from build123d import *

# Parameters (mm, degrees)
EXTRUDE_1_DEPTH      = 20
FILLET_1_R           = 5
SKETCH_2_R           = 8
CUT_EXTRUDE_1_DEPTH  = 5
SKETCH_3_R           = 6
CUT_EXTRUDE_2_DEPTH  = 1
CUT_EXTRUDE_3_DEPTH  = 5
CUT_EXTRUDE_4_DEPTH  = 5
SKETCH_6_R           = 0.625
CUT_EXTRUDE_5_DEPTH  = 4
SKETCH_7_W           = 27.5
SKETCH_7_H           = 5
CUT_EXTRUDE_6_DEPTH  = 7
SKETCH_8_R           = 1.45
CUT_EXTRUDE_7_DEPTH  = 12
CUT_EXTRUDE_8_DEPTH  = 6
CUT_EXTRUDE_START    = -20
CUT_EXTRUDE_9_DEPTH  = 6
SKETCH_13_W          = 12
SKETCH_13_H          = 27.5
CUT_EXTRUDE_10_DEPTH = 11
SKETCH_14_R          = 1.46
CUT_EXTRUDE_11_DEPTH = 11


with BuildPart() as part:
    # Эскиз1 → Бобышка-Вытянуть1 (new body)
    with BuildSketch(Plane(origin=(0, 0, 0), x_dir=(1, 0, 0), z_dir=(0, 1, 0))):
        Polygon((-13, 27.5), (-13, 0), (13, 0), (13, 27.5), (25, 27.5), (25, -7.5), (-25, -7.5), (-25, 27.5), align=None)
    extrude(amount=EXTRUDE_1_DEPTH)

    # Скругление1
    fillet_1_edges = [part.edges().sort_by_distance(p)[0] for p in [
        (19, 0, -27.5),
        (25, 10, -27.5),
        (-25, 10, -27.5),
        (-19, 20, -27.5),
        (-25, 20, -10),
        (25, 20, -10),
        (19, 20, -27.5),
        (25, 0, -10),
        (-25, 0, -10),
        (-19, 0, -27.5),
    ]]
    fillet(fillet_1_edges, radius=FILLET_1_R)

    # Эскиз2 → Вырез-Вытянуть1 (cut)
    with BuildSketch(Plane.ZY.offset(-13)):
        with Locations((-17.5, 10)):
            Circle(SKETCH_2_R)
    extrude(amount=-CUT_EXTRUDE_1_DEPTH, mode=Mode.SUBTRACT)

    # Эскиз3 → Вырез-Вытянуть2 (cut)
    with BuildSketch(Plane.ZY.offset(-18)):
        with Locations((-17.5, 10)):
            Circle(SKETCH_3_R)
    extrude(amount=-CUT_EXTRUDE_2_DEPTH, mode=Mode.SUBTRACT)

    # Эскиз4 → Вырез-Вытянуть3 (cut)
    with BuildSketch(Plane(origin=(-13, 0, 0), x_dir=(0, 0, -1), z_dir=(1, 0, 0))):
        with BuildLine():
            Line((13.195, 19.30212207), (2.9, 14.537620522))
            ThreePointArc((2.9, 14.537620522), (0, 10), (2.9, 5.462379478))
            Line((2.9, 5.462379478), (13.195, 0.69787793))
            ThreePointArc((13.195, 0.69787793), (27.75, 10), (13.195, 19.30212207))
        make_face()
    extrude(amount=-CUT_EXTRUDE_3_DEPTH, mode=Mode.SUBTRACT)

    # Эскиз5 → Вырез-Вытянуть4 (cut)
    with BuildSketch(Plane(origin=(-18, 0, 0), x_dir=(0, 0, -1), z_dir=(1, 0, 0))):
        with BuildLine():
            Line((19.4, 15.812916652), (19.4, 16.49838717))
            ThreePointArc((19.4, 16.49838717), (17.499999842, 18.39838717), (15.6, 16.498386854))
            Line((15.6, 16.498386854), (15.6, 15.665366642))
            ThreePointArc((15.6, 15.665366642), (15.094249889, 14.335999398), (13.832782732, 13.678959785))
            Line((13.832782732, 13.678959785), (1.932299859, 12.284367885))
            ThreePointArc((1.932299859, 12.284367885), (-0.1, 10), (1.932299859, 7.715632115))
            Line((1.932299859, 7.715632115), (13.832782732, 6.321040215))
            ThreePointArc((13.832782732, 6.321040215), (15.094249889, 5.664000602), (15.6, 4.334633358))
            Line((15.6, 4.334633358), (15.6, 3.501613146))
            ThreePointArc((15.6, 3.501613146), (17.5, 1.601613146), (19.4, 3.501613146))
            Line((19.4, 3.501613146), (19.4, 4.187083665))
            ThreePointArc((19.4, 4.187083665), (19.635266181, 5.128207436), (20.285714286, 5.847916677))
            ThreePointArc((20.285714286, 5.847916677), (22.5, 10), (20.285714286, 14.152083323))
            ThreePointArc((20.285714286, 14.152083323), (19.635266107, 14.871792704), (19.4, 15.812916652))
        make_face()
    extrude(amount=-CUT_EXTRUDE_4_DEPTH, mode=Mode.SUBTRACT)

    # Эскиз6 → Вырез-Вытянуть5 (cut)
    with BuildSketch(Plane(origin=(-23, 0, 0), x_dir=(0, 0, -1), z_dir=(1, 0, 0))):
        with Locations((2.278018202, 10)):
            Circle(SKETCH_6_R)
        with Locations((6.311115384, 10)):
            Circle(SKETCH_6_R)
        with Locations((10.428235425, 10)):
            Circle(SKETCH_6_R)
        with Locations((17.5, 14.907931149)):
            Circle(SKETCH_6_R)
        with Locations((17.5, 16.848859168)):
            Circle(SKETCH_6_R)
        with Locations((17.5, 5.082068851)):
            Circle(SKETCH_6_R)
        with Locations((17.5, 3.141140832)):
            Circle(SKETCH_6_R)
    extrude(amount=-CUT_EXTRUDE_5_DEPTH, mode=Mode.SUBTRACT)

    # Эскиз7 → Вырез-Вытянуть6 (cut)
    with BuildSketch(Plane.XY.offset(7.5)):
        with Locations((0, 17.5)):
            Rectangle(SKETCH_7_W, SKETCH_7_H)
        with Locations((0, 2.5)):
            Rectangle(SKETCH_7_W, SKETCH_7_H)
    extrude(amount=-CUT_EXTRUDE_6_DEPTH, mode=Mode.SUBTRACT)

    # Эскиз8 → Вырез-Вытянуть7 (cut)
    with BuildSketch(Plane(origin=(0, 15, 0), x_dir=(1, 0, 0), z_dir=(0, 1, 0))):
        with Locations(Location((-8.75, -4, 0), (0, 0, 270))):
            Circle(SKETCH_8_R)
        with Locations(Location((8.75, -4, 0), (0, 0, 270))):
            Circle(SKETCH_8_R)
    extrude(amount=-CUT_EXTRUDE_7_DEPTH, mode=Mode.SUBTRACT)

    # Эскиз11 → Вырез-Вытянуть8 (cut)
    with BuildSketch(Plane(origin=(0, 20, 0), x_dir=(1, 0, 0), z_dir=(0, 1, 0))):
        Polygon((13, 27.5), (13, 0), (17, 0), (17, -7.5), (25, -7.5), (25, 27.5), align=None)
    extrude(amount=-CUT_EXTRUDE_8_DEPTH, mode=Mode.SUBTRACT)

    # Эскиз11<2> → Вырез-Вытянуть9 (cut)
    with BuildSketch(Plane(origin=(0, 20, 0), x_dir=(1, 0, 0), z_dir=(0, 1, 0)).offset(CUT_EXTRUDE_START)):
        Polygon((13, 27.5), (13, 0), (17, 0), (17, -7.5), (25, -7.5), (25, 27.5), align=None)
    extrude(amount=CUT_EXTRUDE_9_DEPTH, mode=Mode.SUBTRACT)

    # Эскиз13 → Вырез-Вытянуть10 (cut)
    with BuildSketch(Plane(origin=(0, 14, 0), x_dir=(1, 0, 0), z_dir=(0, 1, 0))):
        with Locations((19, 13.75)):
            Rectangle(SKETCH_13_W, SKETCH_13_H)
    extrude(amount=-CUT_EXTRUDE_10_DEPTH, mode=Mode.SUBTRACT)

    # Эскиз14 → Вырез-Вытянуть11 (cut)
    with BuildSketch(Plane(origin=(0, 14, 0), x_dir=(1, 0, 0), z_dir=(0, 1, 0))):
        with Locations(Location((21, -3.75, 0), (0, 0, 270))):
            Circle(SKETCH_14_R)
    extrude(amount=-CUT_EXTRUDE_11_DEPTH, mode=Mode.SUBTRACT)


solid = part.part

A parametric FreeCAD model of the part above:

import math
import FreeCAD as App
import Part
import Sketcher


def edges_at(feature, points):
    """Names of the edges that pass closest to the given points."""
    edges = feature.Shape.Edges
    near = lambda p: min(range(len(edges)), key=lambda i: edges[i].distToShape(Part.Vertex(*p))[0])
    return sorted({f"Edge{near(p) + 1}" for p in points})

doc = App.newDocument("Part")
body = doc.addObject("PartDesign::Body", "Body")

# Sketch on XZ plane
sketch1 = body.newObject("Sketcher::SketchObject", "Sketch")
sketch1.AttachmentSupport = (doc.getObject("XZ_Plane"), [""])
sketch1.MapMode = "FlatFace"
sketch1.addGeometry(Part.LineSegment(App.Vector(-13, 0, 0), App.Vector(-13, -28, 0)), False)
sketch1.addGeometry(Part.LineSegment(App.Vector(-13, -28, 0), App.Vector(-25, -28, 0)), False)
sketch1.addGeometry(Part.LineSegment(App.Vector(-25, -28, 0), App.Vector(-25, 8, 0)), False)
sketch1.addGeometry(Part.LineSegment(App.Vector(-25, 8, 0), App.Vector(25, 8, 0)), False)
sketch1.addGeometry(Part.LineSegment(App.Vector(25, 8, 0), App.Vector(25, -28, 0)), False)
sketch1.addGeometry(Part.LineSegment(App.Vector(25, -28, 0), App.Vector(13, -28, 0)), False)
sketch1.addGeometry(Part.LineSegment(App.Vector(13, -28, 0), App.Vector(13, 0, 0)), False)
sketch1.addGeometry(Part.LineSegment(App.Vector(13, 0, 0), App.Vector(-13, 0, 0)), False)
sketch1.addConstraint(Sketcher.Constraint("Coincident", 0, 2, 1, 1))
sketch1.addConstraint(Sketcher.Constraint("Coincident", 1, 2, 2, 1))
sketch1.addConstraint(Sketcher.Constraint("Coincident", 2, 2, 3, 1))
sketch1.addConstraint(Sketcher.Constraint("Coincident", 3, 2, 4, 1))
sketch1.addConstraint(Sketcher.Constraint("Coincident", 4, 2, 5, 1))
sketch1.addConstraint(Sketcher.Constraint("Coincident", 5, 2, 6, 1))
sketch1.addConstraint(Sketcher.Constraint("Coincident", 6, 2, 7, 1))
sketch1.addConstraint(Sketcher.Constraint("Coincident", 7, 2, 0, 1))
sketch1.addConstraint(Sketcher.Constraint("Vertical", 0))
sketch1.addConstraint(Sketcher.Constraint("Horizontal", 1))
sketch1.addConstraint(Sketcher.Constraint("Vertical", 2))
sketch1.addConstraint(Sketcher.Constraint("Horizontal", 3))
sketch1.addConstraint(Sketcher.Constraint("Vertical", 4))
sketch1.addConstraint(Sketcher.Constraint("Horizontal", 5))
sketch1.addConstraint(Sketcher.Constraint("Vertical", 6))
sketch1.addConstraint(Sketcher.Constraint("Horizontal", 7))
sketch1.addConstraint(Sketcher.Constraint("Symmetric", 6, 2, 7, 2, -1, 1))
sketch1.addConstraint(Sketcher.Constraint("Symmetric", 1, 2, 4, 2, -2))
sketch1.addConstraint(Sketcher.Constraint("DistanceX", 1, 2, 1, 1, 12.0))
sketch1.addConstraint(Sketcher.Constraint("DistanceX", 3, 1, 3, 2, 50.0))
sketch1.addConstraint(Sketcher.Constraint("DistanceY", 2, 1, 2, 2, 35.0))
sketch1.addConstraint(Sketcher.Constraint("DistanceY", 0, 2, 0, 1, 27.5))
pad1 = body.newObject("PartDesign::Pad", "Pad")
pad1.Profile = sketch1
pad1.Length = 20
pad1.Reversed = True
doc.recompute()

fillet = body.newObject("PartDesign::Fillet", "Fillet")
fillet.Base = (pad1, edges_at(pad1, [
    (19, 0, -27.5),
    (25, 10, -27.5),
    (-25, 10, -27.5),
    (-19, 20, -27.5),
    (-25, 20, -10),
    (25, 20, -10),
    (19, 20, -27.5),
    (25, 0, -10),
    (-25, 0, -10),
    (-19, 0, -27.5),
]))
fillet.Radius = 5

# Sketch on YZ plane
sketch2 = body.newObject("Sketcher::SketchObject", "Sketch001")
sketch2.AttachmentSupport = (doc.getObject("YZ_Plane"), [""])
sketch2.MapMode = "FlatFace"
sketch2.AttachmentOffset = App.Placement(App.Vector(0, 0, 13), App.Rotation())
sketch2.addGeometry(Part.Circle(App.Vector(10, -18, 0), App.Vector(0, 0, 1), 8), False)
sketch2.addConstraint(Sketcher.Constraint("Diameter", 0, 16.0))
sketch2.addConstraint(Sketcher.Constraint("DistanceX", -1, 1, 0, 3, 10.0))
sketch2.addConstraint(Sketcher.Constraint("DistanceY", 0, 3, -1, 1, 17.5))
pocket1 = body.newObject("PartDesign::Pocket", "Pocket")
pocket1.Profile = sketch2
pocket1.Length = 5
pocket1.Reversed = True

# Sketch on YZ plane
sketch3 = body.newObject("Sketcher::SketchObject", "Sketch002")
sketch3.AttachmentSupport = (doc.getObject("YZ_Plane"), [""])
sketch3.MapMode = "FlatFace"
sketch3.AttachmentOffset = App.Placement(App.Vector(0, 0, 18), App.Rotation())
sketch3.addGeometry(Part.Circle(App.Vector(10, -18, 0), App.Vector(0, 0, 1), 6), False)
sketch3.addConstraint(Sketcher.Constraint("Diameter", 0, 12.0))
sketch3.addConstraint(Sketcher.Constraint("DistanceX", -1, 1, 0, 3, 10.0))
sketch3.addConstraint(Sketcher.Constraint("DistanceY", 0, 3, -1, 1, 17.5))
pocket2 = body.newObject("PartDesign::Pocket", "Pocket001")
pocket2.Profile = sketch3
pocket2.Length = 1
pocket2.Reversed = True

# Sketch on YZ plane
sketch4 = body.newObject("Sketcher::SketchObject", "Sketch003")
sketch4.AttachmentSupport = (doc.getObject("YZ_Plane"), [""])
sketch4.MapMode = "FlatFace"
sketch4.AttachmentOffset = App.Placement(App.Vector(0, 0, -13), App.Rotation())
sketch4.addGeometry(Part.LineSegment(App.Vector(19, -13, 0), App.Vector(15, -3, 0)), False)
sketch4.addGeometry(Part.ArcOfCircle(Part.Circle(App.Vector(10, -5, 0), App.Vector(0, 0, 1), 5), math.radians(25), math.radians(155)), False)
sketch4.addGeometry(Part.LineSegment(App.Vector(5, -3, 0), App.Vector(1, -13, 0)), False)
sketch4.addGeometry(Part.ArcOfCircle(Part.Circle(App.Vector(10, -18, 0), App.Vector(0, 0, 1), 10), math.radians(155), math.radians(385)), False)
sketch4.addConstraint(Sketcher.Constraint("Tangent", 0, 2, 1, 1))
sketch4.addConstraint(Sketcher.Constraint("Tangent", 1, 2, 2, 1))
sketch4.addConstraint(Sketcher.Constraint("Tangent", 2, 2, 3, 1))
sketch4.addConstraint(Sketcher.Constraint("Tangent", 3, 2, 0, 1))
sketch4.addConstraint(Sketcher.Constraint("Horizontal", 0, 2, 1, 2))
sketch4.addConstraint(Sketcher.Constraint("Radius", 1, 5.0))
sketch4.addConstraint(Sketcher.Constraint("Radius", 3, 10.25))
sketch4.addConstraint(Sketcher.Constraint("DistanceX", -1, 1, 1, 3, 10.0))
sketch4.addConstraint(Sketcher.Constraint("DistanceY", 1, 3, -1, 1, 5.0))
sketch4.addConstraint(Sketcher.Constraint("DistanceY", 3, 3, -1, 1, 17.5))
pocket3 = body.newObject("PartDesign::Pocket", "Pocket002")
pocket3.Profile = sketch4
pocket3.Length = 5

# Sketch on YZ plane
sketch5 = body.newObject("Sketcher::SketchObject", "Sketch004")
sketch5.AttachmentSupport = (doc.getObject("YZ_Plane"), [""])
sketch5.MapMode = "FlatFace"
sketch5.AttachmentOffset = App.Placement(App.Vector(0, 0, -18), App.Rotation())
sketch5.addGeometry(Part.LineSegment(App.Vector(15.8, -19.4, 0), App.Vector(16.5, -19.4, 0)), False)
sketch5.addGeometry(Part.ArcOfCircle(Part.Circle(App.Vector(16.5, -17.5, 0), App.Vector(0, 0, 1), 1.9), math.radians(-90), math.radians(90)), False)
sketch5.addGeometry(Part.LineSegment(App.Vector(16.5, -15.6, 0), App.Vector(15.7, -15.6, 0)), False)
sketch5.addGeometry(Part.ArcOfCircle(Part.Circle(App.Vector(15.7, -13.6, 0), App.Vector(0, 0, 1), 2), math.radians(-173), math.radians(-90)), False)
sketch5.addGeometry(Part.LineSegment(App.Vector(13.7, -13.8, 0), App.Vector(12.3, -1.9, 0)), False)
sketch5.addGeometry(Part.ArcOfCircle(Part.Circle(App.Vector(10, -2.2, 0), App.Vector(0, 0, 1), 2.3), math.radians(7), math.radians(173)), False)
sketch5.addGeometry(Part.LineSegment(App.Vector(7.7, -1.9, 0), App.Vector(6.3, -13.8, 0)), False)
sketch5.addGeometry(Part.ArcOfCircle(Part.Circle(App.Vector(4.3, -13.6, 0), App.Vector(0, 0, 1), 2), math.radians(-90), math.radians(-7)), False)
sketch5.addGeometry(Part.LineSegment(App.Vector(4.3, -15.6, 0), App.Vector(3.5, -15.6, 0)), False)
sketch5.addGeometry(Part.ArcOfCircle(Part.Circle(App.Vector(3.5, -17.5, 0), App.Vector(0, 0, 1), 1.9), math.radians(90), math.radians(270)), False)
sketch5.addGeometry(Part.LineSegment(App.Vector(3.5, -19.4, 0), App.Vector(4.2, -19.4, 0)), False)
sketch5.addGeometry(Part.ArcOfCircle(Part.Circle(App.Vector(4.2, -21.4, 0), App.Vector(0, 0, 1), 2), math.radians(34), math.radians(90)), False)
sketch5.addGeometry(Part.ArcOfCircle(Part.Circle(App.Vector(10, -17.5, 0), App.Vector(0, 0, 1), 5), math.radians(-146), math.radians(-34)), False)
sketch5.addGeometry(Part.ArcOfCircle(Part.Circle(App.Vector(15.8, -21.4, 0), App.Vector(0, 0, 1), 2), math.radians(90), math.radians(146)), False)
sketch5.addConstraint(Sketcher.Constraint("Tangent", 0, 2, 1, 1))
sketch5.addConstraint(Sketcher.Constraint("Tangent", 1, 2, 2, 1))
sketch5.addConstraint(Sketcher.Constraint("Tangent", 2, 2, 3, 2))
sketch5.addConstraint(Sketcher.Constraint("Tangent", 3, 1, 4, 1))
sketch5.addConstraint(Sketcher.Constraint("Tangent", 4, 2, 5, 1))
sketch5.addConstraint(Sketcher.Constraint("Tangent", 5, 2, 6, 1))
sketch5.addConstraint(Sketcher.Constraint("Tangent", 6, 2, 7, 2))
sketch5.addConstraint(Sketcher.Constraint("Tangent", 7, 1, 8, 1))
sketch5.addConstraint(Sketcher.Constraint("Tangent", 8, 2, 9, 1))
sketch5.addConstraint(Sketcher.Constraint("Tangent", 9, 2, 10, 1))
sketch5.addConstraint(Sketcher.Constraint("Tangent", 10, 2, 11, 2))
sketch5.addConstraint(Sketcher.Constraint("Tangent", 11, 1, 12, 1))
sketch5.addConstraint(Sketcher.Constraint("Tangent", 12, 2, 13, 2))
sketch5.addConstraint(Sketcher.Constraint("Tangent", 13, 1, 0, 1))
sketch5.addConstraint(Sketcher.Constraint("Horizontal", 0))
sketch5.addConstraint(Sketcher.Constraint("Horizontal", 2))
sketch5.addConstraint(Sketcher.Constraint("Horizontal", 8))
sketch5.addConstraint(Sketcher.Constraint("Horizontal", 10))
sketch5.addConstraint(Sketcher.Constraint("Equal", 3, 7))
sketch5.addConstraint(Sketcher.Constraint("Equal", 1, 9))
sketch5.addConstraint(Sketcher.Constraint("Equal", 7, 11))
sketch5.addConstraint(Sketcher.Constraint("Equal", 11, 13))
sketch5.addConstraint(Sketcher.Constraint("Horizontal", 3, 3, 7, 3))
sketch5.addConstraint(Sketcher.Constraint("Horizontal", 9, 3, 12, 3))
sketch5.addConstraint(Sketcher.Constraint("Horizontal", 4, 2, 5, 2))
sketch5.addConstraint(Sketcher.Constraint("Vertical", 5, 3, 12, 3))
sketch5.addConstraint(Sketcher.Constraint("Equal", 2, 8))
sketch5.addConstraint(Sketcher.Constraint("Radius", 3, 2.0))
sketch5.addConstraint(Sketcher.Constraint("Radius", 12, 5.0))
sketch5.addConstraint(Sketcher.Constraint("Radius", 1, 1.9))
sketch5.addConstraint(Sketcher.Constraint("Radius", 5, 2.3))
sketch5.addConstraint(Sketcher.Constraint("DistanceX", -1, 1, 5, 3, 10.0))
sketch5.addConstraint(Sketcher.Constraint("DistanceY", 1, 3, -1, 1, 17.5))
sketch5.addConstraint(Sketcher.Constraint("DistanceY", 5, 3, -1, 1, 2.2))
sketch5.addConstraint(Sketcher.Constraint("DistanceX", 4, 2, 3, 3, 3.380999))
sketch5.addConstraint(Sketcher.Constraint("DistanceX", 0, 1, 0, 2, 0.685471))
pocket4 = body.newObject("PartDesign::Pocket", "Pocket003")
pocket4.Profile = sketch5
pocket4.Length = 5

# Sketch on YZ plane
sketch6 = body.newObject("Sketcher::SketchObject", "Sketch005")
sketch6.AttachmentSupport = (doc.getObject("YZ_Plane"), [""])
sketch6.MapMode = "FlatFace"
sketch6.AttachmentOffset = App.Placement(App.Vector(0, 0, -23), App.Rotation())
sketch6.addGeometry(Part.Circle(App.Vector(10, -2.3, 0), App.Vector(0, 0, 1), 0.6), False)
sketch6.addGeometry(Part.Circle(App.Vector(10, -6.3, 0), App.Vector(0, 0, 1), 0.6), False)
sketch6.addGeometry(Part.Circle(App.Vector(10, -10.4, 0), App.Vector(0, 0, 1), 0.6), False)
sketch6.addGeometry(Part.Circle(App.Vector(14.9, -17.5, 0), App.Vector(0, 0, 1), 0.6), False)
sketch6.addGeometry(Part.Circle(App.Vector(16.8, -17.5, 0), App.Vector(0, 0, 1), 0.6), False)
sketch6.addGeometry(Part.Circle(App.Vector(5.1, -17.5, 0), App.Vector(0, 0, 1), 0.6), False)
sketch6.addGeometry(Part.Circle(App.Vector(3.1, -17.5, 0), App.Vector(0, 0, 1), 0.6), False)
sketch6.addConstraint(Sketcher.Constraint("Equal", 0, 1))
sketch6.addConstraint(Sketcher.Constraint("Equal", 1, 2))
sketch6.addConstraint(Sketcher.Constraint("Equal", 2, 3))
sketch6.addConstraint(Sketcher.Constraint("Equal", 3, 4))
sketch6.addConstraint(Sketcher.Constraint("Equal", 4, 5))
sketch6.addConstraint(Sketcher.Constraint("Equal", 5, 6))
sketch6.addConstraint(Sketcher.Constraint("Horizontal", 3, 3, 4, 3))
sketch6.addConstraint(Sketcher.Constraint("Horizontal", 4, 3, 5, 3))
sketch6.addConstraint(Sketcher.Constraint("Horizontal", 5, 3, 6, 3))
sketch6.addConstraint(Sketcher.Constraint("Vertical", 0, 3, 1, 3))
sketch6.addConstraint(Sketcher.Constraint("Vertical", 1, 3, 2, 3))
sketch6.addConstraint(Sketcher.Constraint("Diameter", 0, 1.25))
sketch6.addConstraint(Sketcher.Constraint("DistanceX", -1, 1, 0, 3, 10.0))
sketch6.addConstraint(Sketcher.Constraint("DistanceY", 3, 3, -1, 1, 17.5))
sketch6.addConstraint(Sketcher.Constraint("DistanceY", 0, 3, -1, 1, 2.278018))
sketch6.addConstraint(Sketcher.Constraint("DistanceX", -1, 1, 3, 3, 14.907931))
sketch6.addConstraint(Sketcher.Constraint("DistanceX", -1, 1, 4, 3, 16.848859))
sketch6.addConstraint(Sketcher.Constraint("DistanceX", -1, 1, 5, 3, 5.082069))
sketch6.addConstraint(Sketcher.Constraint("DistanceX", -1, 1, 6, 3, 3.141141))
sketch6.addConstraint(Sketcher.Constraint("DistanceY", 2, 3, 1, 3, 4.11712))
sketch6.addConstraint(Sketcher.Constraint("DistanceY", 1, 3, -1, 1, 6.311115))
pocket5 = body.newObject("PartDesign::Pocket", "Pocket004")
pocket5.Profile = sketch6
pocket5.Length = 4

# Sketch on XY plane
sketch7 = body.newObject("Sketcher::SketchObject", "Sketch006")
sketch7.AttachmentSupport = (doc.getObject("XY_Plane"), [""])
sketch7.MapMode = "FlatFace"
sketch7.AttachmentOffset = App.Placement(App.Vector(0, 0, 7.5), App.Rotation())
sketch7.addGeometry(Part.LineSegment(App.Vector(-14, 20, 0), App.Vector(-14, 15, 0)), False)
sketch7.addGeometry(Part.LineSegment(App.Vector(-14, 15, 0), App.Vector(14, 15, 0)), False)
sketch7.addGeometry(Part.LineSegment(App.Vector(14, 15, 0), App.Vector(14, 20, 0)), False)
sketch7.addGeometry(Part.LineSegment(App.Vector(14, 20, 0), App.Vector(-14, 20, 0)), False)
sketch7.addGeometry(Part.LineSegment(App.Vector(-14, 5, 0), App.Vector(-14, 0, 0)), False)
sketch7.addGeometry(Part.LineSegment(App.Vector(-14, 0, 0), App.Vector(14, 0, 0)), False)
sketch7.addGeometry(Part.LineSegment(App.Vector(14, 0, 0), App.Vector(14, 5, 0)), False)
sketch7.addGeometry(Part.LineSegment(App.Vector(14, 5, 0), App.Vector(-14, 5, 0)), False)
sketch7.addConstraint(Sketcher.Constraint("Coincident", 0, 2, 1, 1))
sketch7.addConstraint(Sketcher.Constraint("Coincident", 1, 2, 2, 1))
sketch7.addConstraint(Sketcher.Constraint("Coincident", 2, 2, 3, 1))
sketch7.addConstraint(Sketcher.Constraint("Coincident", 3, 2, 0, 1))
sketch7.addConstraint(Sketcher.Constraint("Coincident", 4, 2, 5, 1))
sketch7.addConstraint(Sketcher.Constraint("Coincident", 5, 2, 6, 1))
sketch7.addConstraint(Sketcher.Constraint("Coincident", 6, 2, 7, 1))
sketch7.addConstraint(Sketcher.Constraint("Coincident", 7, 2, 4, 1))
sketch7.addConstraint(Sketcher.Constraint("Vertical", 0))
sketch7.addConstraint(Sketcher.Constraint("Horizontal", 1))
sketch7.addConstraint(Sketcher.Constraint("Vertical", 2))
sketch7.addConstraint(Sketcher.Constraint("Horizontal", 3))
sketch7.addConstraint(Sketcher.Constraint("Vertical", 4))
sketch7.addConstraint(Sketcher.Constraint("Horizontal", 5))
sketch7.addConstraint(Sketcher.Constraint("Vertical", 6))
sketch7.addConstraint(Sketcher.Constraint("Horizontal", 7))
sketch7.addConstraint(Sketcher.Constraint("Symmetric", 4, 2, 5, 2, -1, 1))
sketch7.addConstraint(Sketcher.Constraint("Vertical", 3, 2, 4, 2))
sketch7.addConstraint(Sketcher.Constraint("Vertical", 2, 2, 5, 2))
sketch7.addConstraint(Sketcher.Constraint("Equal", 2, 4))
sketch7.addConstraint(Sketcher.Constraint("DistanceY", 0, 2, 0, 1, 5.0))
sketch7.addConstraint(Sketcher.Constraint("DistanceX", 1, 1, 1, 2, 27.5))
sketch7.addConstraint(Sketcher.Constraint("DistanceY", -1, 1, 0, 2, 15.0))
pocket6 = body.newObject("PartDesign::Pocket", "Pocket005")
pocket6.Profile = sketch7
pocket6.Length = 7

# Sketch on XZ plane
sketch8 = body.newObject("Sketcher::SketchObject", "Sketch007")
sketch8.AttachmentSupport = (doc.getObject("XZ_Plane"), [""])
sketch8.MapMode = "FlatFace"
sketch8.AttachmentOffset = App.Placement(App.Vector(0, 0, -15), App.Rotation())
sketch8.addGeometry(Part.Circle(App.Vector(-8.8, 4, 0), App.Vector(0, 0, 1), 1.4), False)
sketch8.addGeometry(Part.Circle(App.Vector(8.8, 4, 0), App.Vector(0, 0, 1), 1.4), False)
sketch8.addConstraint(Sketcher.Constraint("Equal", 0, 1))
sketch8.addConstraint(Sketcher.Constraint("Symmetric", 0, 3, 1, 3, -2))
sketch8.addConstraint(Sketcher.Constraint("Diameter", 0, 2.9))
sketch8.addConstraint(Sketcher.Constraint("DistanceY", -1, 1, 0, 3, 4.0))
sketch8.addConstraint(Sketcher.Constraint("DistanceX", 0, 3, 1, 3, 17.5))
pocket7 = body.newObject("PartDesign::Pocket", "Pocket006")
pocket7.Profile = sketch8
pocket7.Length = 12
pocket7.Reversed = True

# Sketch on XZ plane
sketch9 = body.newObject("Sketcher::SketchObject", "Sketch008")
sketch9.AttachmentSupport = (doc.getObject("XZ_Plane"), [""])
sketch9.MapMode = "FlatFace"
sketch9.AttachmentOffset = App.Placement(App.Vector(0, 0, -20), App.Rotation())
sketch9.addGeometry(Part.LineSegment(App.Vector(13, -27.5, 0), App.Vector(13, 0, 0)), False)
sketch9.addGeometry(Part.LineSegment(App.Vector(13, 0, 0), App.Vector(17, 0, 0)), False)
sketch9.addGeometry(Part.LineSegment(App.Vector(17, 0, 0), App.Vector(17, 7.5, 0)), False)
sketch9.addGeometry(Part.LineSegment(App.Vector(17, 7.5, 0), App.Vector(25, 7.5, 0)), False)
sketch9.addGeometry(Part.LineSegment(App.Vector(25, 7.5, 0), App.Vector(25, -27.5, 0)), False)
sketch9.addGeometry(Part.LineSegment(App.Vector(25, -27.5, 0), App.Vector(13, -27.5, 0)), False)
sketch9.addConstraint(Sketcher.Constraint("Coincident", 0, 2, 1, 1))
sketch9.addConstraint(Sketcher.Constraint("Coincident", 1, 2, 2, 1))
sketch9.addConstraint(Sketcher.Constraint("Coincident", 2, 2, 3, 1))
sketch9.addConstraint(Sketcher.Constraint("Coincident", 3, 2, 4, 1))
sketch9.addConstraint(Sketcher.Constraint("Coincident", 4, 2, 5, 1))
sketch9.addConstraint(Sketcher.Constraint("Coincident", 5, 2, 0, 1))
sketch9.addConstraint(Sketcher.Constraint("Vertical", 0))
sketch9.addConstraint(Sketcher.Constraint("Horizontal", 1))
sketch9.addConstraint(Sketcher.Constraint("Vertical", 2))
sketch9.addConstraint(Sketcher.Constraint("Horizontal", 3))
sketch9.addConstraint(Sketcher.Constraint("Vertical", 4))
sketch9.addConstraint(Sketcher.Constraint("Horizontal", 5))
sketch9.addConstraint(Sketcher.Constraint("PointOnObject", 0, 2, -1))
sketch9.addConstraint(Sketcher.Constraint("DistanceX", 1, 1, 1, 2, 4.0))
sketch9.addConstraint(Sketcher.Constraint("DistanceX", 3, 1, 3, 2, 8.0))
sketch9.addConstraint(Sketcher.Constraint("DistanceY", 4, 2, 4, 1, 35.0))
sketch9.addConstraint(Sketcher.Constraint("DistanceY", 0, 1, 0, 2, 27.5))
sketch9.addConstraint(Sketcher.Constraint("DistanceX", -1, 1, 0, 2, 13.0))
pocket8 = body.newObject("PartDesign::Pocket", "Pocket007")
pocket8.Profile = sketch9
pocket8.Length = 6
pocket8.Reversed = True

# Sketch on XZ plane
sketch10 = body.newObject("Sketcher::SketchObject", "Sketch009")
sketch10.AttachmentSupport = (doc.getObject("XZ_Plane"), [""])
sketch10.MapMode = "FlatFace"
sketch10.addGeometry(Part.LineSegment(App.Vector(13, -27.5, 0), App.Vector(13, 0, 0)), False)
sketch10.addGeometry(Part.LineSegment(App.Vector(13, 0, 0), App.Vector(17, 0, 0)), False)
sketch10.addGeometry(Part.LineSegment(App.Vector(17, 0, 0), App.Vector(17, 7.5, 0)), False)
sketch10.addGeometry(Part.LineSegment(App.Vector(17, 7.5, 0), App.Vector(25, 7.5, 0)), False)
sketch10.addGeometry(Part.LineSegment(App.Vector(25, 7.5, 0), App.Vector(25, -27.5, 0)), False)
sketch10.addGeometry(Part.LineSegment(App.Vector(25, -27.5, 0), App.Vector(13, -27.5, 0)), False)
sketch10.addConstraint(Sketcher.Constraint("Coincident", 0, 2, 1, 1))
sketch10.addConstraint(Sketcher.Constraint("Coincident", 1, 2, 2, 1))
sketch10.addConstraint(Sketcher.Constraint("Coincident", 2, 2, 3, 1))
sketch10.addConstraint(Sketcher.Constraint("Coincident", 3, 2, 4, 1))
sketch10.addConstraint(Sketcher.Constraint("Coincident", 4, 2, 5, 1))
sketch10.addConstraint(Sketcher.Constraint("Coincident", 5, 2, 0, 1))
sketch10.addConstraint(Sketcher.Constraint("Vertical", 0))
sketch10.addConstraint(Sketcher.Constraint("Horizontal", 1))
sketch10.addConstraint(Sketcher.Constraint("Vertical", 2))
sketch10.addConstraint(Sketcher.Constraint("Horizontal", 3))
sketch10.addConstraint(Sketcher.Constraint("Vertical", 4))
sketch10.addConstraint(Sketcher.Constraint("Horizontal", 5))
sketch10.addConstraint(Sketcher.Constraint("PointOnObject", 0, 2, -1))
sketch10.addConstraint(Sketcher.Constraint("DistanceX", 1, 1, 1, 2, 4.0))
sketch10.addConstraint(Sketcher.Constraint("DistanceX", 3, 1, 3, 2, 8.0))
sketch10.addConstraint(Sketcher.Constraint("DistanceY", 4, 2, 4, 1, 35.0))
sketch10.addConstraint(Sketcher.Constraint("DistanceY", 0, 1, 0, 2, 27.5))
sketch10.addConstraint(Sketcher.Constraint("DistanceX", -1, 1, 0, 2, 13.0))
pocket9 = body.newObject("PartDesign::Pocket", "Pocket008")
pocket9.Profile = sketch10
pocket9.Length = 6

# Sketch on XZ plane
sketch11 = body.newObject("Sketcher::SketchObject", "Sketch010")
sketch11.AttachmentSupport = (doc.getObject("XZ_Plane"), [""])
sketch11.MapMode = "FlatFace"
sketch11.AttachmentOffset = App.Placement(App.Vector(0, 0, -14), App.Rotation())
sketch11.addGeometry(Part.LineSegment(App.Vector(13, -28, 0), App.Vector(13, 0, 0)), False)
sketch11.addGeometry(Part.LineSegment(App.Vector(13, 0, 0), App.Vector(25, 0, 0)), False)
sketch11.addGeometry(Part.LineSegment(App.Vector(25, 0, 0), App.Vector(25, -28, 0)), False)
sketch11.addGeometry(Part.LineSegment(App.Vector(25, -28, 0), App.Vector(13, -28, 0)), False)
sketch11.addConstraint(Sketcher.Constraint("Coincident", 0, 2, 1, 1))
sketch11.addConstraint(Sketcher.Constraint("Coincident", 1, 2, 2, 1))
sketch11.addConstraint(Sketcher.Constraint("Coincident", 2, 2, 3, 1))
sketch11.addConstraint(Sketcher.Constraint("Coincident", 3, 2, 0, 1))
sketch11.addConstraint(Sketcher.Constraint("Vertical", 0))
sketch11.addConstraint(Sketcher.Constraint("Horizontal", 1))
sketch11.addConstraint(Sketcher.Constraint("Vertical", 2))
sketch11.addConstraint(Sketcher.Constraint("Horizontal", 3))
sketch11.addConstraint(Sketcher.Constraint("PointOnObject", 0, 2, -1))
sketch11.addConstraint(Sketcher.Constraint("DistanceX", 1, 1, 1, 2, 12.0))
sketch11.addConstraint(Sketcher.Constraint("DistanceY", 0, 1, 0, 2, 27.5))
sketch11.addConstraint(Sketcher.Constraint("DistanceX", -1, 1, 0, 2, 13.0))
pocket10 = body.newObject("PartDesign::Pocket", "Pocket009")
pocket10.Profile = sketch11
pocket10.Length = 11
pocket10.Reversed = True

# Sketch on XZ plane
sketch12 = body.newObject("Sketcher::SketchObject", "Sketch011")
sketch12.AttachmentSupport = (doc.getObject("XZ_Plane"), [""])
sketch12.MapMode = "FlatFace"
sketch12.AttachmentOffset = App.Placement(App.Vector(0, 0, -14), App.Rotation())
sketch12.addGeometry(Part.Circle(App.Vector(21, 3.8, 0), App.Vector(0, 0, 1), 1.5), False)
sketch12.addConstraint(Sketcher.Constraint("Diameter", 0, 2.92))
sketch12.addConstraint(Sketcher.Constraint("DistanceX", -1, 1, 0, 3, 21.0))
sketch12.addConstraint(Sketcher.Constraint("DistanceY", -1, 1, 0, 3, 3.75))
pocket11 = body.newObject("PartDesign::Pocket", "Pocket010")
pocket11.Profile = sketch12
pocket11.Length = 11
pocket11.Reversed = True

doc.recompute()
